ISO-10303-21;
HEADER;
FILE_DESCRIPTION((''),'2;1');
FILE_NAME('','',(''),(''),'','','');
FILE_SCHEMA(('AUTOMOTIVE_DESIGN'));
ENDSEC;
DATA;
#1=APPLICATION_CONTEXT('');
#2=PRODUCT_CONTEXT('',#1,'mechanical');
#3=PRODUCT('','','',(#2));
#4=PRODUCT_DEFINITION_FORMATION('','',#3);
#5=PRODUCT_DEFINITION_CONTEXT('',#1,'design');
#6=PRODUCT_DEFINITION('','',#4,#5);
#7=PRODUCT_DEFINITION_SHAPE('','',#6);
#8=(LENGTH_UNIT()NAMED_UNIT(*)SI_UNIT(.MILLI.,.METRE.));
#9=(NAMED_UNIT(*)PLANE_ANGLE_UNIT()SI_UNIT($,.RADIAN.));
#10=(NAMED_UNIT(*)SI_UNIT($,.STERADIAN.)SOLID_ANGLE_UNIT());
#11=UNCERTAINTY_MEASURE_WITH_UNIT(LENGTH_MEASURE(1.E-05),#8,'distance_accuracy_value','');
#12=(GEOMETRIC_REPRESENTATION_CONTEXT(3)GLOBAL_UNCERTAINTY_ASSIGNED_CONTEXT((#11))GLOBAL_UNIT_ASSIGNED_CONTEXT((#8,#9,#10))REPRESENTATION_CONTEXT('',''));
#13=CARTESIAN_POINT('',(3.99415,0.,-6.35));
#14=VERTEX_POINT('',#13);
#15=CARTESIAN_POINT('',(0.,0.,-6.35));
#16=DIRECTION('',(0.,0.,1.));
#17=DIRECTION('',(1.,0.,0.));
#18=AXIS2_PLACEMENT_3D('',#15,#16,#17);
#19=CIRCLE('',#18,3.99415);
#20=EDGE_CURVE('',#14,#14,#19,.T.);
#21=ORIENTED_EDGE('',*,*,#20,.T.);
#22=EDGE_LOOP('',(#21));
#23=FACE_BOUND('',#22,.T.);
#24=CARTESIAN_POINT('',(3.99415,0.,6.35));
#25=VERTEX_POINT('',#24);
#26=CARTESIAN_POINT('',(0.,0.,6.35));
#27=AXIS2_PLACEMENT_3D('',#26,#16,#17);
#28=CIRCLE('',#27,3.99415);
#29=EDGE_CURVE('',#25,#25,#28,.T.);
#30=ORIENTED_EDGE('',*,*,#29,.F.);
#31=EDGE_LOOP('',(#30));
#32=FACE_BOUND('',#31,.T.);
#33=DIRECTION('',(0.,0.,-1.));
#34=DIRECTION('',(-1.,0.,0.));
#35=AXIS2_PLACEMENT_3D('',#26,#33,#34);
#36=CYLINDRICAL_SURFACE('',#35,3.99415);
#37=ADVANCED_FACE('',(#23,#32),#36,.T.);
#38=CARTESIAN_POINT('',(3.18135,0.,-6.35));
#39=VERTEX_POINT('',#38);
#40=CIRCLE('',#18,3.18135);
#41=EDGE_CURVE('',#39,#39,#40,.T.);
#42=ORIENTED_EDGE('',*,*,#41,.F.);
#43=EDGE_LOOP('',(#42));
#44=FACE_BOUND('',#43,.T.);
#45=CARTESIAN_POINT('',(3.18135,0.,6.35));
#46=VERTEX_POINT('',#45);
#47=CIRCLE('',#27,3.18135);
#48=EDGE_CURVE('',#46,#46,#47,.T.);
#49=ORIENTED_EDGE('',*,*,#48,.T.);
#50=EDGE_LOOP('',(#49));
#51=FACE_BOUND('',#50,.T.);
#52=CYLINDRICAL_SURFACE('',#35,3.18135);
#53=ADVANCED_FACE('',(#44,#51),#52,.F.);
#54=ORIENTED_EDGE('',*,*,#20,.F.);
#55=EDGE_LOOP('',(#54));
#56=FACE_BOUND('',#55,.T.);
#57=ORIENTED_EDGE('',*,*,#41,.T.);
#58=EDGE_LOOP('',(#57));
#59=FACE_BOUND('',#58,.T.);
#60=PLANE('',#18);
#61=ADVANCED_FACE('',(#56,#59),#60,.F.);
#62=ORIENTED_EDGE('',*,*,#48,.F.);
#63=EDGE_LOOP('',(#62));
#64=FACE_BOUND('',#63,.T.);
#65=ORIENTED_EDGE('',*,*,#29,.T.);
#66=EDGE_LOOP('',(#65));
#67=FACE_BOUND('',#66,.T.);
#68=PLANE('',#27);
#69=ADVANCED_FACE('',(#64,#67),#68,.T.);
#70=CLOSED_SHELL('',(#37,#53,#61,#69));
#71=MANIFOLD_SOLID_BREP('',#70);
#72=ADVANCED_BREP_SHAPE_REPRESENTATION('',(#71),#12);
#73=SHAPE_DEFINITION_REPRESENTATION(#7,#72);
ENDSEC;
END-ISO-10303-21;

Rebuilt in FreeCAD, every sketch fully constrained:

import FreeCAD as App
import Part
import Sketcher
from FreeCAD import Vector
Q = App.Units.Quantity

doc = App.newDocument("Part")
params = doc.addObject("Spreadsheet::Sheet", "Params")
for row, (alias, value) in enumerate([
    ("pad1_length", "0.25 in"),
    ("pad1_length2", "0.25 in"),
], start=1):
    params.set(f"A{row}", alias)
    params.set(f"B{row}", "=" + value)
    params.setAlias(f"B{row}", alias)

body = doc.addObject("PartDesign::Body", "Body")

# Sketch on XY plane
sketch1 = doc.addObject("Sketcher::SketchObject", "Sketch")
body.addObject(sketch1)
sketch1.AttachmentSupport = (doc.XY_Plane, [""])
sketch1.MapMode = "FlatFace"
sketch1.addGeometry(Part.Circle(Vector(0, 0, 0), Vector(0, 0, 1), 4), False)
sketch1.addGeometry(Part.Circle(Vector(0, 0, 0), Vector(0, 0, 1), 3.2), False)
sketch1.addConstraint(Sketcher.Constraint("Coincident", 0, 3, -1, 1))
sketch1.addConstraint(Sketcher.Constraint("Coincident", 1, 3, -1, 1))
sketch1.addConstraint(Sketcher.Constraint("Diameter", 0, Q("0.3145 in")))
sketch1.addConstraint(Sketcher.Constraint("Diameter", 1, Q("0.2505 in")))
pad1 = doc.addObject("PartDesign::Pad", "Pad")
body.addObject(pad1)
pad1.Profile = sketch1
pad1.Type = "TwoLengths"
pad1.setExpression("Length", "Params.pad1_length")
pad1.setExpression("Length2", "Params.pad1_length2")

doc.recompute()
